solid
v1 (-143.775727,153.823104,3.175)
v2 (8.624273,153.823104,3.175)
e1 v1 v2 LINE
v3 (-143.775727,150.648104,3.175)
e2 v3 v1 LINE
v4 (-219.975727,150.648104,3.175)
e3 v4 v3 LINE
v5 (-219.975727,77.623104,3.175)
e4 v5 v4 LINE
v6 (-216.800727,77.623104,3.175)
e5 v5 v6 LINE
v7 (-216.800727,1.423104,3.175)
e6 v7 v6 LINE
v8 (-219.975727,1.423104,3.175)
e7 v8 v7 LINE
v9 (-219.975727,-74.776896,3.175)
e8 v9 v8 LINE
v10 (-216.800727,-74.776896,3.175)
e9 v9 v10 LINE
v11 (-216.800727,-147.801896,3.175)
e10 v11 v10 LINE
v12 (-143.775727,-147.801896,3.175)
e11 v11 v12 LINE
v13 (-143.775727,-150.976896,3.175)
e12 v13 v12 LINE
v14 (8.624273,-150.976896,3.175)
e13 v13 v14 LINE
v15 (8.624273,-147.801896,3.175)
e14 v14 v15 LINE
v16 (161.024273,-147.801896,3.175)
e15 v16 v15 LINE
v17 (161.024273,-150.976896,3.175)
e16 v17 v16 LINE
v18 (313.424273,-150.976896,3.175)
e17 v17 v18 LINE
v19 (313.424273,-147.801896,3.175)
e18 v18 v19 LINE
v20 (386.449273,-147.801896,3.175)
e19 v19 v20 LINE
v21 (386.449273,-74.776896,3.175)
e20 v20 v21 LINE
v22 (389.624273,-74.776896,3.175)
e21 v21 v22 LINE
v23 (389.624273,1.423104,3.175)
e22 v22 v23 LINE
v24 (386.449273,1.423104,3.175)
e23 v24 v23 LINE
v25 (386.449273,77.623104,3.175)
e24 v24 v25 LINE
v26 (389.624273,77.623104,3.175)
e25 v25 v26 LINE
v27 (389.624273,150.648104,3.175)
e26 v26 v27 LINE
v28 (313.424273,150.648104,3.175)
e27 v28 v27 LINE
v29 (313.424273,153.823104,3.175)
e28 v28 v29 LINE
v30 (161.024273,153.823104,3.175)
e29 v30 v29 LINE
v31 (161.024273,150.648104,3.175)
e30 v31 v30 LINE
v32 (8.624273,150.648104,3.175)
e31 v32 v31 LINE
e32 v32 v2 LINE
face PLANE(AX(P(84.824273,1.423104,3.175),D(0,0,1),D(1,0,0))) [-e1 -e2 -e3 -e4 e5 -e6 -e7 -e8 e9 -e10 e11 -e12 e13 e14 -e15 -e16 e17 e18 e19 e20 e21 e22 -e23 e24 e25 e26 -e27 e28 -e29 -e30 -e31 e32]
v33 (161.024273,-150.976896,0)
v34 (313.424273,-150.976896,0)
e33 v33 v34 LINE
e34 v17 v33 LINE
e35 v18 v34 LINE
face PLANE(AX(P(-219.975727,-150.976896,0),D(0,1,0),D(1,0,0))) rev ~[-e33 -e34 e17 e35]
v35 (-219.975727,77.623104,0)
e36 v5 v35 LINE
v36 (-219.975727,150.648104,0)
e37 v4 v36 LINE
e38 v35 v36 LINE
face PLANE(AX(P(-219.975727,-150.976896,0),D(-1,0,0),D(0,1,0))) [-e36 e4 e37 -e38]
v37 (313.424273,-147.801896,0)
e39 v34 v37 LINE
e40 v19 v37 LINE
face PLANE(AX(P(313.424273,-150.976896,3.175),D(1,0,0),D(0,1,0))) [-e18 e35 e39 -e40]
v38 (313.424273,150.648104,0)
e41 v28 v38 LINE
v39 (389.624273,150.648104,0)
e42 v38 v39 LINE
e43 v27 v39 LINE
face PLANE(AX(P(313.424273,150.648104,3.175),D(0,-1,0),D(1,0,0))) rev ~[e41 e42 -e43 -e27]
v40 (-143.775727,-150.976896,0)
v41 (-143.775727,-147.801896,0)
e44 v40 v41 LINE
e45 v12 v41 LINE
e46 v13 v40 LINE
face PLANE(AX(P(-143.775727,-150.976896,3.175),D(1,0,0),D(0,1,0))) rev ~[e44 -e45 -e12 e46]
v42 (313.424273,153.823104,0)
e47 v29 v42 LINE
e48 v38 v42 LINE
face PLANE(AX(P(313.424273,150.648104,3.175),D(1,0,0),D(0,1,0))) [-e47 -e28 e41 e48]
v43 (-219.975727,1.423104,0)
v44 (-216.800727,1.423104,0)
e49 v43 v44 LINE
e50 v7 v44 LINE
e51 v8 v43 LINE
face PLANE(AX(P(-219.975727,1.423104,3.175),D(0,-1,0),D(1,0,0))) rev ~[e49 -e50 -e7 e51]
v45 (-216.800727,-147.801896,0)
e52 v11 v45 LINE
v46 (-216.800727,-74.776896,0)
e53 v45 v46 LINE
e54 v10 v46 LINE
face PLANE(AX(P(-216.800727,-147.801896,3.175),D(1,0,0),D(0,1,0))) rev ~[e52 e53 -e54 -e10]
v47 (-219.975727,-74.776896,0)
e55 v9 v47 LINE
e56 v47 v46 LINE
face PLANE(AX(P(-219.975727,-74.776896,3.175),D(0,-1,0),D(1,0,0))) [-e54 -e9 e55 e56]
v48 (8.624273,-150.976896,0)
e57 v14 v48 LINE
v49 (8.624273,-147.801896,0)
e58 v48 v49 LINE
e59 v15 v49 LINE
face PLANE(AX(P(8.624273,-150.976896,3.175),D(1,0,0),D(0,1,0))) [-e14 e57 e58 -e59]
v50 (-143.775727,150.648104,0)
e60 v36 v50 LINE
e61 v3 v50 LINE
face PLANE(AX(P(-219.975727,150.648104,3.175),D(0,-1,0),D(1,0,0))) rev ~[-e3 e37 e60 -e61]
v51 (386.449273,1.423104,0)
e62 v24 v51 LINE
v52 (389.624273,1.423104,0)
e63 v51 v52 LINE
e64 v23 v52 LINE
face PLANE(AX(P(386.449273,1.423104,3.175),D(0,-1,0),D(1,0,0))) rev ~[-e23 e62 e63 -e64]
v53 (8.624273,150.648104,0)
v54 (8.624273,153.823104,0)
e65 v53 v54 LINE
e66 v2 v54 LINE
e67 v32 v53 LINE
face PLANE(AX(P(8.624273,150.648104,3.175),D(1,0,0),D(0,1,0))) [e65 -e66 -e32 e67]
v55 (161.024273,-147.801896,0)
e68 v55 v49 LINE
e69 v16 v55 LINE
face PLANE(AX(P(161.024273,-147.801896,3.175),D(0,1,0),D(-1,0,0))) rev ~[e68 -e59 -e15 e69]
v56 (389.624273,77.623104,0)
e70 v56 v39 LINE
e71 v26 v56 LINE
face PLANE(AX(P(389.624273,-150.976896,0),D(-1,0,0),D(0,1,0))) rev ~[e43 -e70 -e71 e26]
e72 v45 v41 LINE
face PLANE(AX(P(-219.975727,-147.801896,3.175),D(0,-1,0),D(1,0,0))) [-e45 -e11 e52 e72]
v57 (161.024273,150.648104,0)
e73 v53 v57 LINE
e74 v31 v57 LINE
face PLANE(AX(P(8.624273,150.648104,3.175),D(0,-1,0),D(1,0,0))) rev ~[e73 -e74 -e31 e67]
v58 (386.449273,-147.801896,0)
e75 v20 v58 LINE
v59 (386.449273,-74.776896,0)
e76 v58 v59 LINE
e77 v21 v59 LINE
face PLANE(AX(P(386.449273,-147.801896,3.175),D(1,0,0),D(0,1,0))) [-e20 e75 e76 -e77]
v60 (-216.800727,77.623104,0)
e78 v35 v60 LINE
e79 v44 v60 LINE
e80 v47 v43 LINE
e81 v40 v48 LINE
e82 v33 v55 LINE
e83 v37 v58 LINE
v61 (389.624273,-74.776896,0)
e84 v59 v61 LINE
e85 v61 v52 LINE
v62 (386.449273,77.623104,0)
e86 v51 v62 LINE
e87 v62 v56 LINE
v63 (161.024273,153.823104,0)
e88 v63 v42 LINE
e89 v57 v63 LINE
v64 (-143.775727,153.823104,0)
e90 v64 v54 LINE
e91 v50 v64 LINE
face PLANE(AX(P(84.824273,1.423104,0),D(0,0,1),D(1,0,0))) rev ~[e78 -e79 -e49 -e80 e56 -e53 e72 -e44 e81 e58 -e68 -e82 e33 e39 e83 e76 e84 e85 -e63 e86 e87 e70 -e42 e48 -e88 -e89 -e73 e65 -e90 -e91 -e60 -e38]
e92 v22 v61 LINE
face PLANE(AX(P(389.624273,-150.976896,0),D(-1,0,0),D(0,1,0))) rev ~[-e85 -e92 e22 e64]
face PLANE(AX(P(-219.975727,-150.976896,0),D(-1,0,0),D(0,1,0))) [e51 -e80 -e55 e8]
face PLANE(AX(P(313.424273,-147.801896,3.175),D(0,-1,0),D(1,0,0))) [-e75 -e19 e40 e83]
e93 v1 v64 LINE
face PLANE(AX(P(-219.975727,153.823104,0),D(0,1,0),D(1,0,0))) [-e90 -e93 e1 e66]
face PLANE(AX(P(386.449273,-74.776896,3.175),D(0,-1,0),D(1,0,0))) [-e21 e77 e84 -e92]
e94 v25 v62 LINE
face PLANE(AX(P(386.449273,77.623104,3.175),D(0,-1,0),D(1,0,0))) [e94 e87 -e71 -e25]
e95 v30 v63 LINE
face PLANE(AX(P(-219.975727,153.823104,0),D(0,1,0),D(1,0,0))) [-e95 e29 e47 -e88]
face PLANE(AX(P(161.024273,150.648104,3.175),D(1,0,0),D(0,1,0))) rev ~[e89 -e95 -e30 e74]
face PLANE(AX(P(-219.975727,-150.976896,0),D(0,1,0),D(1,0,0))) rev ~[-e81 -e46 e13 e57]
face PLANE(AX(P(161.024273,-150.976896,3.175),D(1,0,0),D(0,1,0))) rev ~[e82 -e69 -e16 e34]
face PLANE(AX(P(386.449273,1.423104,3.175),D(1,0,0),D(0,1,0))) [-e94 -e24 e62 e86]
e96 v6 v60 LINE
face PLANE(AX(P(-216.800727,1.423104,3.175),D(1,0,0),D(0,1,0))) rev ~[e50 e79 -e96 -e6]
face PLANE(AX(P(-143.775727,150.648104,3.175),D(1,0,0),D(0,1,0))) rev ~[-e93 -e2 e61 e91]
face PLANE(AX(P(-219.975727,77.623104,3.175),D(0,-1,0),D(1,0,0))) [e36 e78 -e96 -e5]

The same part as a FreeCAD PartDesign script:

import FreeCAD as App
import Part
import Sketcher
from FreeCAD import Vector
Q = App.Units.Quantity


def add_polygon(sketch, points):
    """Adds a closed chain of lines whose ends are joined by coincident constraints."""
    first, n = sketch.GeometryCount, len(points)
    for a, b in zip(points, points[1:] + points[:1]):
        sketch.addGeometry(Part.LineSegment(App.Vector(*a, 0), App.Vector(*b, 0)), False)
    for i in range(n):
        sketch.addConstraint(Sketcher.Constraint("Coincident", first + i, 2, first + (i + 1) % n, 1))

doc = App.newDocument("Part")
body = doc.addObject("PartDesign::Body", "Body")

# Sketch on XY plane
sketch1 = body.newObject("Sketcher::SketchObject", "Sketch")
sketch1.AttachmentSupport = (doc.getObject("XY_Plane"), [""])
sketch1.MapMode = "FlatFace"
add_polygon(sketch1, [(-220, 154), (-220, -151), (390, -151), (390, 154)])  # lines 0-3
sketch1.addConstraint([
    Sketcher.Constraint("Vertical", 0),
    Sketcher.Constraint("Horizontal", 1),
    Sketcher.Constraint("Vertical", 2),
    Sketcher.Constraint("Horizontal", 3),
    Sketcher.Constraint("DistanceX", 1, 1, 1, 2, Q("24 in")),
    Sketcher.Constraint("DistanceY", 0, 2, 0, 1, Q("12 in")),
    Sketcher.Constraint("DistanceX", 0, 2, -1, 1, 219.975727),
    Sketcher.Constraint("DistanceY", 0, 2, -1, 1, 150.976896),
])
pad1 = body.newObject("PartDesign::Pad", "Pad")
pad1.Profile = sketch1
pad1.Length = Q("0.125 in")

# Sketch on XY plane
sketch2 = body.newObject("Sketcher::SketchObject", "Sketch001")
sketch2.AttachmentSupport = (doc.getObject("XY_Plane"), [""])
sketch2.MapMode = "FlatFace"
sketch2.AttachmentOffset = App.Placement(Vector(0, 0, 0.125 * 25.4), App.Rotation())
add_polygon(sketch2, [(-220, 153.8), (-220, 150.6), (-143.8, 150.6), (-143.8, 153.8)])  # lines 0-3
add_polygon(sketch2, [(313.4, 153.8), (313.4, 150.6), (389.6, 150.6), (389.6, 153.8)])  # lines 4-7
add_polygon(sketch2, [(-220, -147.8), (-220, -151), (-143.8, -151), (-143.8, -147.8)])  # lines 8-11
add_polygon(sketch2, [(313.4, -147.8), (313.4, -151), (389.6, -151), (389.6, -147.8)])  # lines 12-15
add_polygon(sketch2, [(8.6, 153.8), (8.6, 150.6), (161, 150.6), (161, 153.8)])  # lines 16-19
add_polygon(sketch2, [(8.6, -147.8), (8.6, -151), (161, -151), (161, -147.8)])  # lines 20-23
sketch2.addConstraint([
    Sketcher.Constraint("Vertical", 0),
    Sketcher.Constraint("Horizontal", 1),
    Sketcher.Constraint("Vertical", 2),
    Sketcher.Constraint("Horizontal", 3),
    Sketcher.Constraint("Vertical", 4),
    Sketcher.Constraint("Horizontal", 5),
    Sketcher.Constraint("Vertical", 6),
    Sketcher.Constraint("Horizontal", 7),
    Sketcher.Constraint("Vertical", 8),
    Sketcher.Constraint("Horizontal", 9),
    Sketcher.Constraint("Vertical", 10),
    Sketcher.Constraint("Horizontal", 11),
    Sketcher.Constraint("Vertical", 12),
    Sketcher.Constraint("Horizontal", 13),
    Sketcher.Constraint("Vertical", 14),
    Sketcher.Constraint("Horizontal", 15),
    Sketcher.Constraint("Vertical", 16),
    Sketcher.Constraint("Horizontal", 17),
    Sketcher.Constraint("Vertical", 18),
    Sketcher.Constraint("Horizontal", 19),
    Sketcher.Constraint("Vertical", 20),
    Sketcher.Constraint("Horizontal", 21),
    Sketcher.Constraint("Vertical", 22),
    Sketcher.Constraint("Horizontal", 23),
    Sketcher.Constraint("Horizontal", 1, 2, 4, 2),
    Sketcher.Constraint("Horizontal", 3, 2, 6, 2),
    Sketcher.Constraint("Horizontal", 9, 2, 12, 2),
    Sketcher.Constraint("Horizontal", 11, 2, 14, 2),
    Sketcher.Constraint("Horizontal", 5, 2, 16, 2),
    Sketcher.Constraint("Horizontal", 7, 2, 18, 2),
    Sketcher.Constraint("Horizontal", 13, 2, 20, 2),
    Sketcher.Constraint("Horizontal", 15, 2, 22, 2),
    Sketcher.Constraint("Vertical", 3, 2, 8, 2),
    Sketcher.Constraint("Vertical", 2, 2, 9, 2),
    Sketcher.Constraint("Vertical", 7, 2, 12, 2),
    Sketcher.Constraint("Vertical", 6, 2, 13, 2),
    Sketcher.Constraint("Vertical", 19, 2, 20, 2),
    Sketcher.Constraint("Vertical", 18, 2, 21, 2),
    Sketcher.Constraint("Equal", 3, 5),
    Sketcher.Constraint("Equal", 6, 8),
    Sketcher.Constraint("DistanceX", 1, 1, 1, 2, Q("3 in")),
    Sketcher.Constraint("DistanceX", 17, 1, 17, 2, Q("6 in")),
    Sketcher.Constraint("DistanceX", 1, 2, 4, 2, Q("18 in")),
    Sketcher.Constraint("DistanceY", 8, 2, 3, 2, Q("12 in")),
    Sketcher.Constraint("DistanceX", 1, 2, 16, 2, Q("6 in")),
    Sketcher.Constraint("DistanceY", 0, 2, 0, 1, Q("0.125 in")),
    Sketcher.Constraint("DistanceX", 0, 2, -1, 1, 219.975727),
    Sketcher.Constraint("DistanceY", -1, 1, 0, 2, 150.648104),
])
pocket1 = body.newObject("PartDesign::Pocket", "Pocket")
pocket1.Profile = sketch2
pocket1.Type = "ThroughAll"

# Sketch on XY plane
sketch3 = body.newObject("Sketcher::SketchObject", "Sketch002")
sketch3.AttachmentSupport = (doc.getObject("XY_Plane"), [""])
sketch3.MapMode = "FlatFace"
sketch3.AttachmentOffset = App.Placement(Vector(0, 0, 0.125 * 25.4), App.Rotation())
add_polygon(sketch3, [(386.4, 77.6), (386.4, 1.4), (389.6, 1.4), (389.6, 77.6)])  # lines 0-3
add_polygon(sketch3, [(386.4, -74.8), (386.4, -147.8), (389.6, -147.8), (389.6, -74.8)])  # lines 4-7
add_polygon(sketch3, [(-220, -74.8), (-220, -147.8), (-216.8, -147.8), (-216.8, -74.8)])  # lines 8-11
add_polygon(sketch3, [(-220, 77.6), (-220, 1.4), (-216.8, 1.4), (-216.8, 77.6)])  # lines 12-15
sketch3.addConstraint([
    Sketcher.Constraint("Vertical", 0),
    Sketcher.Constraint("Horizontal", 1),
    Sketcher.Constraint("Vertical", 2),
    Sketcher.Constraint("Horizontal", 3),
    Sketcher.Constraint("Vertical", 4),
    Sketcher.Constraint("Horizontal", 5),
    Sketcher.Constraint("Vertical", 6),
    Sketcher.Constraint("Horizontal", 7),
    Sketcher.Constraint("Vertical", 8),
    Sketcher.Constraint("Horizontal", 9),
    Sketcher.Constraint("Vertical", 10),
    Sketcher.Constraint("Horizontal", 11),
    Sketcher.Constraint("Vertical", 12),
    Sketcher.Constraint("Horizontal", 13),
    Sketcher.Constraint("Vertical", 14),
    Sketcher.Constraint("Horizontal", 15),
    Sketcher.Constraint("Horizontal", 5, 2, 8, 2),
    Sketcher.Constraint("Horizontal", 7, 2, 10, 2),
    Sketcher.Constraint("Horizontal", 1, 2, 12, 2),
    Sketcher.Constraint("Horizontal", 3, 2, 14, 2),
    Sketcher.Constraint("Vertical", 3, 2, 4, 2),
    Sketcher.Constraint("Vertical", 2, 2, 5, 2),
    Sketcher.Constraint("Vertical", 11, 2, 12, 2),
    Sketcher.Constraint("Vertical", 10, 2, 13, 2),
    Sketcher.Constraint("Equal", 7, 9),
    Sketcher.Constraint("DistanceY", 0, 2, 0, 1, Q("3 in")),
    Sketcher.Constraint("DistanceY", 6, 2, 1, 2, Q("3 in")),
    Sketcher.Constraint("DistanceX", 8, 2, 5, 2, Q("24 in")),
    Sketcher.Constraint("DistanceX", 1, 1, 1, 2, Q("0.125 in")),
    Sketcher.Constraint("DistanceY", 4, 2, 4, 1, Q("2.875 in")),
    Sketcher.Constraint("DistanceX", -1, 1, 0, 2, 386.449273),
    Sketcher.Constraint("DistanceY", -1, 1, 0, 2, 1.423104),
])
pocket2 = body.newObject("PartDesign::Pocket", "Pocket001")
pocket2.Profile = sketch3
pocket2.Type = "ThroughAll"

doc.recompute()
